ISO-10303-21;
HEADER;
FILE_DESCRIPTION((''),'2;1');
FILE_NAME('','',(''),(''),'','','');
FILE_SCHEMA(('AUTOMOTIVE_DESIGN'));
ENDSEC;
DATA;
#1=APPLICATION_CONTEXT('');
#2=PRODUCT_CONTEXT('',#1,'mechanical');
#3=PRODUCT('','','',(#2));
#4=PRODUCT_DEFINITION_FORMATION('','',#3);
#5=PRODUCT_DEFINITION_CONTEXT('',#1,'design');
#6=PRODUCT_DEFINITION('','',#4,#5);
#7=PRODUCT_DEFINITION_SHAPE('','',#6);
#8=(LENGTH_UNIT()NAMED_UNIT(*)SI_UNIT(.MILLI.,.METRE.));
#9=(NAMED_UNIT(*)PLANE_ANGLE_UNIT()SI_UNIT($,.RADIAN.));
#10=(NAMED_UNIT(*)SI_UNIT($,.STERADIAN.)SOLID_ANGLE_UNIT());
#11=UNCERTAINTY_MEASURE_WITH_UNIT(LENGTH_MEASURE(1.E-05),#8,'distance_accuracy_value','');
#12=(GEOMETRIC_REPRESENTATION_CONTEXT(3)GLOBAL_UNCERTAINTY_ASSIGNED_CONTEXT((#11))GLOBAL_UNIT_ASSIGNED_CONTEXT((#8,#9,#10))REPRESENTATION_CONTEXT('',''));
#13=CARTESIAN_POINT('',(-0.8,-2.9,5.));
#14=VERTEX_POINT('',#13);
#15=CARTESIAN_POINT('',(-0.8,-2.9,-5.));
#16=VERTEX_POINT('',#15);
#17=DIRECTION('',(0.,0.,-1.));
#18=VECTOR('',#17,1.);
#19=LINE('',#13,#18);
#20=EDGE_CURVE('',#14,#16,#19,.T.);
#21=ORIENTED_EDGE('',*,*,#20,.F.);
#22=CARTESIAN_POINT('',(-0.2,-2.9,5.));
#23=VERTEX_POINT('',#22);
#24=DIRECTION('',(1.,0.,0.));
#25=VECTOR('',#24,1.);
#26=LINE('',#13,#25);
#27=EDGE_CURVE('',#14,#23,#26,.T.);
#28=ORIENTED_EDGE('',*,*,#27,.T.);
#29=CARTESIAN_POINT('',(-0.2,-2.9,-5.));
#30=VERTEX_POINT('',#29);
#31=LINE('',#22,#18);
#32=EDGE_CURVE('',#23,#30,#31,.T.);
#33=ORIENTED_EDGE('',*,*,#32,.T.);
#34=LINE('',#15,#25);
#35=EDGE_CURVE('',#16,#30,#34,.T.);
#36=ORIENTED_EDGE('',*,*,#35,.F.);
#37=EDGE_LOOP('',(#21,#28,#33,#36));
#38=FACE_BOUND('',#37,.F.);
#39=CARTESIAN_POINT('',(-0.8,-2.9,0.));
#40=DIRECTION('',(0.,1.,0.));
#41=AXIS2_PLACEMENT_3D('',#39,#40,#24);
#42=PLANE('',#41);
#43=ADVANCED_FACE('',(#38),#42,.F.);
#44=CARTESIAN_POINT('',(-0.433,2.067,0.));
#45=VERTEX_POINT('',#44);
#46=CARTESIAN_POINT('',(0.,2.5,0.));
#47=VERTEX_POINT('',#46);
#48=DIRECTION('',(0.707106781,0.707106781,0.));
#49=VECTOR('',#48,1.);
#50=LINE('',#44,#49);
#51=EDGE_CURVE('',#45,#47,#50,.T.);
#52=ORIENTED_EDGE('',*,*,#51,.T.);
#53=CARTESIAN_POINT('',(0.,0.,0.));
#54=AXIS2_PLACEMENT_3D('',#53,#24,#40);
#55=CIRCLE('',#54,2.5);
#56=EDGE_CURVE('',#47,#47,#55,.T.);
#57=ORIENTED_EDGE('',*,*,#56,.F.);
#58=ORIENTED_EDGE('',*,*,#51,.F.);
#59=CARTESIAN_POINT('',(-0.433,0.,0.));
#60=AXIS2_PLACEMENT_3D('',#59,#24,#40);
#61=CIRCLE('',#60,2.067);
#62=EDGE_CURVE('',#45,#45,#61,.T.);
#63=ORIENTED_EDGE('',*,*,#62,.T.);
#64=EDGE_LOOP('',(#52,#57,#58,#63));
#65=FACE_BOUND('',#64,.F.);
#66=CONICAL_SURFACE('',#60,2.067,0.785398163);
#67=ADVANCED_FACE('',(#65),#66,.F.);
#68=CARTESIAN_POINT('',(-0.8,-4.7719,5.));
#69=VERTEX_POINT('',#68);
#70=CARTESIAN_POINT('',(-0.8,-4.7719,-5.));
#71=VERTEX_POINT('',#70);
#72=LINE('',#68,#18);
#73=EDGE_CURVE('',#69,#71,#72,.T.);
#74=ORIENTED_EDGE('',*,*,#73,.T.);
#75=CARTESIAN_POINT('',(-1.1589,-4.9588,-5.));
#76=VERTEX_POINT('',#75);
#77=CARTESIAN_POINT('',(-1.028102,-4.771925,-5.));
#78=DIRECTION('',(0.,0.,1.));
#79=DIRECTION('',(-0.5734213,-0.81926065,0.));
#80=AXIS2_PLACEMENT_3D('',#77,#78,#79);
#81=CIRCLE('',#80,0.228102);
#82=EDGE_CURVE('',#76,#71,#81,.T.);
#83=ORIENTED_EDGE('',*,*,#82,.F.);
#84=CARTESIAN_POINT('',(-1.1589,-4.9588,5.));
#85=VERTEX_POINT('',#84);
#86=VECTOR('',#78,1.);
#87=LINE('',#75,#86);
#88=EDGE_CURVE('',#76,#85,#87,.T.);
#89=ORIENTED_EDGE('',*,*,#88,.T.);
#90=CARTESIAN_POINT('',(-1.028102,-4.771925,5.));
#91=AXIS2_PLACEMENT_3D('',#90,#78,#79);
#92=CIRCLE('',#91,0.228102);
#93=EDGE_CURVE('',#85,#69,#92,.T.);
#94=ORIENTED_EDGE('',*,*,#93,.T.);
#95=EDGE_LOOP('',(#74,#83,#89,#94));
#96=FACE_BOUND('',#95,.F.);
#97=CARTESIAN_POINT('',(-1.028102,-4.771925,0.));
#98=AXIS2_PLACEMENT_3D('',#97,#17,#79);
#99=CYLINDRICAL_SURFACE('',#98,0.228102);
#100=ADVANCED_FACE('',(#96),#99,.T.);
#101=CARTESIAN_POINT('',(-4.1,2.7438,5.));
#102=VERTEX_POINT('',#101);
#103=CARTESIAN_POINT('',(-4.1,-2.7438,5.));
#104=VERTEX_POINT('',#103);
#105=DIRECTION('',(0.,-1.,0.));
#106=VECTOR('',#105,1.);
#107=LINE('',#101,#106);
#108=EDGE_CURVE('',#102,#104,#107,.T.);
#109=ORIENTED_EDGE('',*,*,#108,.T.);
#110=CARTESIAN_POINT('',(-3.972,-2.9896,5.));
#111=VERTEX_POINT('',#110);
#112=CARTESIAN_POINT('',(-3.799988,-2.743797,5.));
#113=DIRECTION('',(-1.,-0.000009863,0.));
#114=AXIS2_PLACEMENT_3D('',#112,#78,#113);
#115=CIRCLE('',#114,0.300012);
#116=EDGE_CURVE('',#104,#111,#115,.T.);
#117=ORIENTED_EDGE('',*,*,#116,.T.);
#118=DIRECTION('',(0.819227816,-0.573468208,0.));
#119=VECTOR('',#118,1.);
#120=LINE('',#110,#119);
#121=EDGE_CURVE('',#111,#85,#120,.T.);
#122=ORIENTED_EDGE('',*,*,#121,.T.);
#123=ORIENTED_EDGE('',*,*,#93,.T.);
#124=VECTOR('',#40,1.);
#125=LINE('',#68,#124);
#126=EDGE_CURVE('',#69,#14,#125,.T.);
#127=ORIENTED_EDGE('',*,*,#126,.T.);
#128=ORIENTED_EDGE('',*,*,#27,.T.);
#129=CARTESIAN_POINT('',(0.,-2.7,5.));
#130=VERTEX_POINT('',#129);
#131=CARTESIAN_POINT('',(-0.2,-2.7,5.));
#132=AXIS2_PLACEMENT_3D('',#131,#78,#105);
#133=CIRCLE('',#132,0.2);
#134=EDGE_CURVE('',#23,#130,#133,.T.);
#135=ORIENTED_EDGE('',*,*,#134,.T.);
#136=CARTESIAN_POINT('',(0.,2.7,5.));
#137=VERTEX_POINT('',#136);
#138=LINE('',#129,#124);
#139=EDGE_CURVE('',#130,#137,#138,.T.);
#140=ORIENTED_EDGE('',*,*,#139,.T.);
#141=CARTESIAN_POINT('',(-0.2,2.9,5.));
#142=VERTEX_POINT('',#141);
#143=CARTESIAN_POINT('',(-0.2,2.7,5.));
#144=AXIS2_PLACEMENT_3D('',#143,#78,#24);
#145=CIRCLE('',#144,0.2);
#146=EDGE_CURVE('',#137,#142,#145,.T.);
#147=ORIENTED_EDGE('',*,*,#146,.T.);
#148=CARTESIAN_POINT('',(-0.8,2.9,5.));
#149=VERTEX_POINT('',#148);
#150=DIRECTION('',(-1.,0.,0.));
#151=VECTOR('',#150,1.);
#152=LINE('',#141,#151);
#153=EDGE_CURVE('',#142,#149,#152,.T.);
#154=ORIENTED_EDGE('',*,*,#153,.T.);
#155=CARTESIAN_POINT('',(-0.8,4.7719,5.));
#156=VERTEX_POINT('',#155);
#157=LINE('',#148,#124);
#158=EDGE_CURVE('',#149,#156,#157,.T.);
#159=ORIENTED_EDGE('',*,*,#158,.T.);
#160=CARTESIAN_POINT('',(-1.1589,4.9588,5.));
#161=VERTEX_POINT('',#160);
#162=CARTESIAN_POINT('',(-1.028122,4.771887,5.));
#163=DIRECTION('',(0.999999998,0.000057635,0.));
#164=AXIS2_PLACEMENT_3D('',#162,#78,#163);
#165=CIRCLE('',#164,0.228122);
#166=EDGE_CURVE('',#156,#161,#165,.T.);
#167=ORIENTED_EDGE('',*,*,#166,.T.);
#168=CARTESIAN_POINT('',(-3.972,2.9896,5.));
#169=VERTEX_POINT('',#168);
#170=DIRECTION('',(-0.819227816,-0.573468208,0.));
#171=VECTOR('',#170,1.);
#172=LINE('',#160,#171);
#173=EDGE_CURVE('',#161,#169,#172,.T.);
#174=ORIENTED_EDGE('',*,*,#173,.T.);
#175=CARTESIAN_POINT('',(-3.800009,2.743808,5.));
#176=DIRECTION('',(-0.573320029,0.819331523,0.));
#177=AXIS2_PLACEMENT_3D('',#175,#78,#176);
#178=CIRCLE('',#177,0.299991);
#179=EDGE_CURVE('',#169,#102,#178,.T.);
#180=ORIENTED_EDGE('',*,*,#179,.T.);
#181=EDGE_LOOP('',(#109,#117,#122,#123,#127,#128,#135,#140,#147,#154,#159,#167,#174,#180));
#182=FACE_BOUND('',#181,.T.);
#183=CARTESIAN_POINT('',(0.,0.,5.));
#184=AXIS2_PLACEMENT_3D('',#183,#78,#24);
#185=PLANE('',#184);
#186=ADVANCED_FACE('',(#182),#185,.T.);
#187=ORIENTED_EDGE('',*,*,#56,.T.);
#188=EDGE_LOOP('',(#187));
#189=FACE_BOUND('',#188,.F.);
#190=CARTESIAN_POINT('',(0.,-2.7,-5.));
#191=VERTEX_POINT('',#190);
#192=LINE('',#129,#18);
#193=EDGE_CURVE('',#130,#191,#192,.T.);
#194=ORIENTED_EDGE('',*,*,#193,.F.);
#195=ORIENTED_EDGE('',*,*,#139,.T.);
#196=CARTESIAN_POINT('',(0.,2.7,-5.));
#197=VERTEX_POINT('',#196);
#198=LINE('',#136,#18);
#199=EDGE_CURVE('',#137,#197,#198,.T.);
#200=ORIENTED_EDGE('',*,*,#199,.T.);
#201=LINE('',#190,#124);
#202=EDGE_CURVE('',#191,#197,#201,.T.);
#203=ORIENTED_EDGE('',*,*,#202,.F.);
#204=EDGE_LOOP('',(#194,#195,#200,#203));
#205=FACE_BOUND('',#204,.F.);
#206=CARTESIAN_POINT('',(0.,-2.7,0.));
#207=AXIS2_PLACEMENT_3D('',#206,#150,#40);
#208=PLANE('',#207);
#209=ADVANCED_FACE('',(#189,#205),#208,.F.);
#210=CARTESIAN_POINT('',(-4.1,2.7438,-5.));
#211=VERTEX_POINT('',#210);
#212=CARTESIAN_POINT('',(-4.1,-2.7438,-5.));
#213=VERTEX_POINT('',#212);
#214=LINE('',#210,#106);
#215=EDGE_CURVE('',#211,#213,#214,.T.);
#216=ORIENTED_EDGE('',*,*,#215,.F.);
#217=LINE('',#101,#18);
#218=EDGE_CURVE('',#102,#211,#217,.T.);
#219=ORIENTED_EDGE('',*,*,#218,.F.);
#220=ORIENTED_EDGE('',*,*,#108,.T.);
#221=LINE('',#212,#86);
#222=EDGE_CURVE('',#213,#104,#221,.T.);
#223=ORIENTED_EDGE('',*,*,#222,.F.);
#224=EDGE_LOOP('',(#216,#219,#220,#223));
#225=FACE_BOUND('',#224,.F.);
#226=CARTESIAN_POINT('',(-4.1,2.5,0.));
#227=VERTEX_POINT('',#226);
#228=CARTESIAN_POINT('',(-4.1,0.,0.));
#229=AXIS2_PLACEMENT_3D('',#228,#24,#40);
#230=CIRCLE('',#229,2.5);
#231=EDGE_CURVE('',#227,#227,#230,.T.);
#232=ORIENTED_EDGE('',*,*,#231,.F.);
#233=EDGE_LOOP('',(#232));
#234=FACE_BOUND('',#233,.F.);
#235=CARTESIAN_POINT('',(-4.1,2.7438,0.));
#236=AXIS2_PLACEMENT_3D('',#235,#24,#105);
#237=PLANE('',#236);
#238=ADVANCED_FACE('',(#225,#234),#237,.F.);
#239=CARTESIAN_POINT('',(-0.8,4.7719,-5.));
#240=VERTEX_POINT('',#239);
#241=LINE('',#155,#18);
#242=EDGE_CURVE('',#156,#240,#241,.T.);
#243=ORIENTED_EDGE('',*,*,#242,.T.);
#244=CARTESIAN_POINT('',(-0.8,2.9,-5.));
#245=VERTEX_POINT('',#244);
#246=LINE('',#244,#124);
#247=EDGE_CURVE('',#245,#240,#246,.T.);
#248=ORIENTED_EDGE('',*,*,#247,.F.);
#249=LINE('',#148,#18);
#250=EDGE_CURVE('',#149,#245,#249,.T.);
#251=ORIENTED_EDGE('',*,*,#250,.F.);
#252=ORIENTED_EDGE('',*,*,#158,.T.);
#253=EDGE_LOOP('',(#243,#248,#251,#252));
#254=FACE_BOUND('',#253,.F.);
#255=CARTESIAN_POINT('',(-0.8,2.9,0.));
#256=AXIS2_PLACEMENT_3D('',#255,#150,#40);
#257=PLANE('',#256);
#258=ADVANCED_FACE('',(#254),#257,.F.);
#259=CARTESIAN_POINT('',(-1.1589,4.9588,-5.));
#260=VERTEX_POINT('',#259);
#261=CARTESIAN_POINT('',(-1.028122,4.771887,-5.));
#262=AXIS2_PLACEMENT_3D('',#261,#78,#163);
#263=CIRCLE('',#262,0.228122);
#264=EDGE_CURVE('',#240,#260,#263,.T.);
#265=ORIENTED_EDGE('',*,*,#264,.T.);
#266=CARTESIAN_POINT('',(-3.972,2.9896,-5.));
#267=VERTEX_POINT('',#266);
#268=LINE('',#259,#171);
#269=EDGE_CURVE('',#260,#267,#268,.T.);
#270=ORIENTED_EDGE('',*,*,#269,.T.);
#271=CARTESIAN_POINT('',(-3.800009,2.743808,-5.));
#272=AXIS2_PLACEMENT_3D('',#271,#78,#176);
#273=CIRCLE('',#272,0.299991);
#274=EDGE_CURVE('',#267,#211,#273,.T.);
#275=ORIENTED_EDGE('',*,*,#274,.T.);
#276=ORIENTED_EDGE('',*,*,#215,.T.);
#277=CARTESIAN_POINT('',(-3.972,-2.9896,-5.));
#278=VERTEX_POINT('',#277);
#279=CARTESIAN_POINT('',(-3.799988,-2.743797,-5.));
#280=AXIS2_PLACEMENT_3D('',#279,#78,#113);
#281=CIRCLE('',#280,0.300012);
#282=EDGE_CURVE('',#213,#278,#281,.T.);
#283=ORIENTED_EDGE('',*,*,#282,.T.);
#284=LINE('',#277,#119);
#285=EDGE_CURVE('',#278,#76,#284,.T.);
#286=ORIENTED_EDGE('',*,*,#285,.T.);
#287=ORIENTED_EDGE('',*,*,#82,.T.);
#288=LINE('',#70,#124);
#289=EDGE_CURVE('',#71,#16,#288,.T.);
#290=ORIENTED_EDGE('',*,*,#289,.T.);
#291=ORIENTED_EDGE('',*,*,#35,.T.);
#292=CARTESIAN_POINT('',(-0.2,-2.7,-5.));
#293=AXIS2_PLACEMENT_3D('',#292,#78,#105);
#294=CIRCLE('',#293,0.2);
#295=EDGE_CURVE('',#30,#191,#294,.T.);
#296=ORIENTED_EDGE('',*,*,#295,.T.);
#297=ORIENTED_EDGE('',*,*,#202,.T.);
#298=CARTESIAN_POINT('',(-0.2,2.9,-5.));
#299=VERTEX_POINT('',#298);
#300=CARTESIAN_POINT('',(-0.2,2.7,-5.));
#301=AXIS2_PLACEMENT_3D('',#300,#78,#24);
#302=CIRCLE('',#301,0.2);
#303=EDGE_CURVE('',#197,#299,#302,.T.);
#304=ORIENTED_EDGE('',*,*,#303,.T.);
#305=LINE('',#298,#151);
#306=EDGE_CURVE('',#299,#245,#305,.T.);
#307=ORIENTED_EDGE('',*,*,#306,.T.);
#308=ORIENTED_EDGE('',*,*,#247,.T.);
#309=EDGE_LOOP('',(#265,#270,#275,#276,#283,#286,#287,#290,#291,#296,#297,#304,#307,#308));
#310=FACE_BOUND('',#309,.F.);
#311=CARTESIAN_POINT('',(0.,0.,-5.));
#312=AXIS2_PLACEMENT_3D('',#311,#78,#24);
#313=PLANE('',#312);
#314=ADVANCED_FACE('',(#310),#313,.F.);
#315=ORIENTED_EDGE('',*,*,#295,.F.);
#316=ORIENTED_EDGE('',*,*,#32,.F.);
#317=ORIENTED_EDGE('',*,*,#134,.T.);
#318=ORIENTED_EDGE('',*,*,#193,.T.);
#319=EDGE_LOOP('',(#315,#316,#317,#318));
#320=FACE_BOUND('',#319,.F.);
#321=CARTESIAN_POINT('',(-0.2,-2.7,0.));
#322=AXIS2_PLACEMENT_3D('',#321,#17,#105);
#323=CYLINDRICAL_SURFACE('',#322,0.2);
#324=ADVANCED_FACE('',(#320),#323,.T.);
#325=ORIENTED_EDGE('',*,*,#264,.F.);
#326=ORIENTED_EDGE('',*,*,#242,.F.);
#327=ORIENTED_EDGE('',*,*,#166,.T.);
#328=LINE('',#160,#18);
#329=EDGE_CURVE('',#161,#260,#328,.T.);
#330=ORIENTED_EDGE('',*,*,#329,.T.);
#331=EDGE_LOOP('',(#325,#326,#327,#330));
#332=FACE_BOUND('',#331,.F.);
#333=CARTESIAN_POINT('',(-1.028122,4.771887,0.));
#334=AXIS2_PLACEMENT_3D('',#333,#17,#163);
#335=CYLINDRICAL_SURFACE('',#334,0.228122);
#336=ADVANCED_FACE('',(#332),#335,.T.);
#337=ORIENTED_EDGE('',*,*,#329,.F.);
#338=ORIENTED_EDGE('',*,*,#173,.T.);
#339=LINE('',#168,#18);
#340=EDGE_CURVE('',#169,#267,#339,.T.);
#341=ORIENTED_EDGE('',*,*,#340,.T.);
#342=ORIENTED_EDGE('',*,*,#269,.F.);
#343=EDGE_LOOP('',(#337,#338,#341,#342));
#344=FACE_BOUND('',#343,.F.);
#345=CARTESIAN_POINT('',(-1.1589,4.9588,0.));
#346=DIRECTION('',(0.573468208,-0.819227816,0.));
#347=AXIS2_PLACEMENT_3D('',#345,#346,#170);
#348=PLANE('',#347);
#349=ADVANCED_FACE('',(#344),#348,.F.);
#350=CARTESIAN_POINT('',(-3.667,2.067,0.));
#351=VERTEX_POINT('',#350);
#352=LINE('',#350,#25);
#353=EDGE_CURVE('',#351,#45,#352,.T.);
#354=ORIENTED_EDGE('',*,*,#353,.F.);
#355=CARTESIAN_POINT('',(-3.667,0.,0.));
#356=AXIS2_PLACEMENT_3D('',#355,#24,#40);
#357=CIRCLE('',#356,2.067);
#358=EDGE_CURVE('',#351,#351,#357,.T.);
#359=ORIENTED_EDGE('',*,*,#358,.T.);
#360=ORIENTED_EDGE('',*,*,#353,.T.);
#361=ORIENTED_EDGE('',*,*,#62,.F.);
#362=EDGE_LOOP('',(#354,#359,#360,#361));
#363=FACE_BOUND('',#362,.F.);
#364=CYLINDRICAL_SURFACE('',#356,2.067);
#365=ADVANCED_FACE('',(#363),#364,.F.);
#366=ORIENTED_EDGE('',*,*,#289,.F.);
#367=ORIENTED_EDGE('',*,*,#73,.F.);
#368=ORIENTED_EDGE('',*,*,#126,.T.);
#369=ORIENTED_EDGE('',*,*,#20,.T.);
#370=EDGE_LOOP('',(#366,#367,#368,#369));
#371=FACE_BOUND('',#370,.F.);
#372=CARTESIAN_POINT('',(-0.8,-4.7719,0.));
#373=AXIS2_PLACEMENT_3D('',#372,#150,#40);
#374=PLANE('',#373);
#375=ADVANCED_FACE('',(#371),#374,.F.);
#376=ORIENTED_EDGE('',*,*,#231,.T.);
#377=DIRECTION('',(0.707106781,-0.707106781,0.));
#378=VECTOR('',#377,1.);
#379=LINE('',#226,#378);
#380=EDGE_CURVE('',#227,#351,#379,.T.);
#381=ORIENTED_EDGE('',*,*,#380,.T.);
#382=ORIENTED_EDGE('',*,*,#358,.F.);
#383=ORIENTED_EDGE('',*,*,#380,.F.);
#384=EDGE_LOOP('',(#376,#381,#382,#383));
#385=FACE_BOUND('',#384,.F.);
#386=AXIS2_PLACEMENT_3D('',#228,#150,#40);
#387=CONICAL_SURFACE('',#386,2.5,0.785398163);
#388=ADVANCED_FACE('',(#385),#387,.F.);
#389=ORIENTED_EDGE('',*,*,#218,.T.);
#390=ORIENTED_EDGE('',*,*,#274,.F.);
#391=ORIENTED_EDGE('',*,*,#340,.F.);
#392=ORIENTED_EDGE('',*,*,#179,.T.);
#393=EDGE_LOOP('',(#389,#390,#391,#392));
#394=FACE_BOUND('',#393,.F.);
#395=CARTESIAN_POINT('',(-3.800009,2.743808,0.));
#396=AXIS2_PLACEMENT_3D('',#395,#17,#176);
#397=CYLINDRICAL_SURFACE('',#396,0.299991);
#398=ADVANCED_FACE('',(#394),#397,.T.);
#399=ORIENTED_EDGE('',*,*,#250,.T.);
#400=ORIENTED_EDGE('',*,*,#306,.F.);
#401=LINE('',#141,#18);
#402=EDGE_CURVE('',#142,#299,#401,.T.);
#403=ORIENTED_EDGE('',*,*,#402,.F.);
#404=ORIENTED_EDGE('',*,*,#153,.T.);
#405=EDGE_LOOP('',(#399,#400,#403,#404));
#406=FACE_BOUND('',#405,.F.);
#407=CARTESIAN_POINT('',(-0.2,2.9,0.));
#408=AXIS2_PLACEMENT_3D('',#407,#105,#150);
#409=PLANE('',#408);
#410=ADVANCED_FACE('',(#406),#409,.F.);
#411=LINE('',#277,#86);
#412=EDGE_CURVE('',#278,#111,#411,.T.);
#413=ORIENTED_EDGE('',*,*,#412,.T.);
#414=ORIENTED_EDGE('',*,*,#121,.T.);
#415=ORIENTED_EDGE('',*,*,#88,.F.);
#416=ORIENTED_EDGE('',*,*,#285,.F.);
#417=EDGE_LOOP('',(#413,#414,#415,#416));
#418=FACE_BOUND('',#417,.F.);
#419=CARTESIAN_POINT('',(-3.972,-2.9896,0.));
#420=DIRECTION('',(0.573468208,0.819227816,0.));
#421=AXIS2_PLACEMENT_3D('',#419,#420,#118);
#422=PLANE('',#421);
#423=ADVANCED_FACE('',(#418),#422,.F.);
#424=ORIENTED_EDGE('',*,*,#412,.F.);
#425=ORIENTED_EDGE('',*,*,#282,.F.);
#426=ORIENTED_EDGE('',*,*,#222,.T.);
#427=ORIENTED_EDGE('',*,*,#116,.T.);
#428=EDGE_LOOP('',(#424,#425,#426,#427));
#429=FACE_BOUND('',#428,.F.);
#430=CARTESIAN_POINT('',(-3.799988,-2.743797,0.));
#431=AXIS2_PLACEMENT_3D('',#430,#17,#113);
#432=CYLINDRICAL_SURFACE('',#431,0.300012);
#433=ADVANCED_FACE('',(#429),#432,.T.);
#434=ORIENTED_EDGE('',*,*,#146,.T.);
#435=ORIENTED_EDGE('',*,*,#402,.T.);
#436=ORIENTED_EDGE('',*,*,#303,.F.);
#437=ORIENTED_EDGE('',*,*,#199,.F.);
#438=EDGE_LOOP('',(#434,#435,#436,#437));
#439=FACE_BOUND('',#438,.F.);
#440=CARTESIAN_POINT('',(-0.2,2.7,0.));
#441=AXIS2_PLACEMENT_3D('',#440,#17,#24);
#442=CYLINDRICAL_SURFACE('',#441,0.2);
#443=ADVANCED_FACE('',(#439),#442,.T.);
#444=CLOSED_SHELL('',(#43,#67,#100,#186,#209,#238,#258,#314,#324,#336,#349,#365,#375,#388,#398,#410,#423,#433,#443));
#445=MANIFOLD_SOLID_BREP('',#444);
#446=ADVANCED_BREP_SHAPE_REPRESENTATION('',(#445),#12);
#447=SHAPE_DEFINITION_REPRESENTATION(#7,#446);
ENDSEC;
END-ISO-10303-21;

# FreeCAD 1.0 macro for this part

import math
import FreeCAD as App
import Part
import Sketcher

V = App.Vector


def add_polygon(sketch, points):
    """Adds a closed chain of lines whose ends are joined by coincident constraints."""
    first, n = sketch.GeometryCount, len(points)
    for a, b in zip(points, points[1:] + points[:1]):
        sketch.addGeometry(Part.LineSegment(App.Vector(*a, 0), App.Vector(*b, 0)), False)
    for i in range(n):
        sketch.addConstraint(Sketcher.Constraint("Coincident", first + i, 2, first + (i + 1) % n, 1))

doc = App.newDocument("Part")
params = doc.addObject("Spreadsheet::Sheet", "Params")
for row, (alias, value) in enumerate([
    ("sketch1_radius", "0.3 mm"),
    ("sketch1_radius2", "0.2 mm"),
    ("sketch1_width", "0.6 mm"),
    ("sketch1_height", "5.4 mm"),
    ("pad1_length", "10 mm"),
    ("sketch2_width", "4.1 mm"),
    ("sketch2_height", "2.5 mm"),
    ("groove_angle", "360 deg"),
], start=1):
    params.set(f"A{row}", alias)
    params.set(f"B{row}", "=" + value)
    params.setAlias(f"B{row}", alias)

body = doc.addObject("PartDesign::Body", "Body")

# Sketch on XY plane
sketch1 = body.newObject("Sketcher::SketchObject", "Sketch")
sketch1.AttachmentSupport = (doc.getObject("XY_Plane"), [""])
sketch1.MapMode = "FlatFace"
sketch1.addGeometry([
    Part.LineSegment(V(-4.1, 2.74, 0), V(-4.1, -2.74, 0)),  # 0
    Part.ArcOfCircle(Part.Circle(V(-3.8, -2.74, 0), V(0, 0, 1), 0.3), math.radians(180), math.radians(235)),  # 1
    Part.LineSegment(V(-3.97, -2.99, 0), V(-1.16, -4.96, 0)),  # 2
    Part.ArcOfCircle(Part.Circle(V(-1.03, -4.77, 0), V(0, 0, 1), 0.23), math.radians(-125), math.radians(0)),  # 3
    Part.LineSegment(V(-0.8, -4.77, 0), V(-0.8, -2.9, 0)),  # 4
    Part.LineSegment(V(-0.8, -2.9, 0), V(-0.2, -2.9, 0)),  # 5
    Part.ArcOfCircle(Part.Circle(V(-0.2, -2.7, 0), V(0, 0, 1), 0.2), math.radians(-90), math.radians(0)),  # 6
    Part.LineSegment(V(0, -2.7, 0), V(0, 2.7, 0)),  # 7
    Part.ArcOfCircle(Part.Circle(V(-0.2, 2.7, 0), V(0, 0, 1), 0.2), math.radians(0), math.radians(90)),  # 8
    Part.LineSegment(V(-0.2, 2.9, 0), V(-0.8, 2.9, 0)),  # 9
    Part.LineSegment(V(-0.8, 2.9, 0), V(-0.8, 4.77, 0)),  # 10
    Part.ArcOfCircle(Part.Circle(V(-1.03, 4.77, 0), V(0, 0, 1), 0.23), math.radians(0), math.radians(125)),  # 11
    Part.LineSegment(V(-1.16, 4.96, 0), V(-3.97, 2.99, 0)),  # 12
    Part.ArcOfCircle(Part.Circle(V(-3.8, 2.74, 0), V(0, 0, 1), 0.3), math.radians(125), math.radians(180)),  # 13
], False)
sketch1.addConstraint([
    Sketcher.Constraint("Tangent", 0, 2, 1, 1),
    Sketcher.Constraint("Tangent", 1, 2, 2, 1),
    Sketcher.Constraint("Tangent", 2, 2, 3, 1),
    Sketcher.Constraint("Tangent", 3, 2, 4, 1),
    Sketcher.Constraint("Coincident", 4, 2, 5, 1),
    Sketcher.Constraint("Tangent", 5, 2, 6, 1),
    Sketcher.Constraint("Tangent", 6, 2, 7, 1),
    Sketcher.Constraint("Tangent", 7, 2, 8, 1),
    Sketcher.Constraint("Tangent", 8, 2, 9, 1),
    Sketcher.Constraint("Coincident", 9, 2, 10, 1),
    Sketcher.Constraint("Tangent", 10, 2, 11, 1),
    Sketcher.Constraint("Tangent", 11, 2, 12, 1),
    Sketcher.Constraint("Tangent", 12, 2, 13, 1),
    Sketcher.Constraint("Tangent", 13, 2, 0, 1),
    Sketcher.Constraint("Vertical", 0),
    Sketcher.Constraint("Vertical", 4),
    Sketcher.Constraint("Horizontal", 5),
    Sketcher.Constraint("Vertical", 7),
    Sketcher.Constraint("Horizontal", 9),
    Sketcher.Constraint("Vertical", 10),
    Sketcher.Constraint("Equal", 6, 8),
    Sketcher.Constraint("Equal", 3, 11),
    Sketcher.Constraint("Equal", 1, 13),
    Sketcher.Constraint("Symmetric", 6, 2, 7, 2, -1, 1),
    Sketcher.Constraint("Symmetric", 3, 3, 11, 3, -1),
    Sketcher.Constraint("Vertical", 2, 2, 11, 2),
    Sketcher.Constraint("Radius", 1, 0.3),
    Sketcher.Constraint("Radius", 6, 0.2),
    Sketcher.Constraint("DistanceX", 5, 1, 5, 2, 0.6),
    Sketcher.Constraint("DistanceY", 7, 1, 7, 2, 5.4),
    Sketcher.Constraint("Radius", 11, 0.228),
    Sketcher.Constraint("DistanceX", 1, 3, 3, 2, 3.0),
    Sketcher.Constraint("DistanceY", 4, 1, 4, 2, 1.872),
    Sketcher.Constraint("DistanceY", 0, 2, 0, 1, 5.4876),
])
sketch1.setExpression("Constraints[26]", "Params.sketch1_radius")
sketch1.setExpression("Constraints[27]", "Params.sketch1_radius2")
sketch1.setExpression("Constraints[28]", "Params.sketch1_width")
sketch1.setExpression("Constraints[29]", "Params.sketch1_height")
pad1 = body.newObject("PartDesign::Pad", "Pad")
pad1.Profile = sketch1
pad1.setExpression("Length", "Params.pad1_length")
pad1.Midplane = True

# Sketch on XY plane
sketch2 = body.newObject("Sketcher::SketchObject", "Sketch001")
sketch2.AttachmentSupport = (doc.getObject("XY_Plane"), [""])
sketch2.MapMode = "FlatFace"
add_polygon(sketch2, [(-4.1, 0), (0, 0), (0, 2.5), (-0.4, 2.1), (-3.7, 2.1), (-4.1, 2.5)])  # lines 0-5
sketch2.addConstraint([
    Sketcher.Constraint("Horizontal", 0),
    Sketcher.Constraint("Vertical", 1),
    Sketcher.Constraint("Horizontal", 3),
    Sketcher.Constraint("Vertical", 5),
    Sketcher.Constraint("Coincident", 0, 2, -1, 1),
    Sketcher.Constraint("Perpendicular", 2, 4),
    Sketcher.Constraint("Horizontal", 1, 2, 4, 2),
    Sketcher.Constraint("Equal", 2, 4),
    Sketcher.Constraint("DistanceX", 0, 1, 0, 2, 4.1),
    Sketcher.Constraint("DistanceY", 1, 1, 1, 2, 2.5),
    Sketcher.Constraint("DistanceX", 3, 2, 3, 1, 3.234),
])
sketch2.setExpression("Constraints[14]", "Params.sketch2_width")
sketch2.setExpression("Constraints[15]", "Params.sketch2_height")
groove = body.newObject("PartDesign::Groove", "Groove")
groove.Profile = sketch2
groove.ReferenceAxis = (sketch2, ["H_Axis"])
groove.setExpression("Angle", "Params.groove_angle")

doc.recompute()
